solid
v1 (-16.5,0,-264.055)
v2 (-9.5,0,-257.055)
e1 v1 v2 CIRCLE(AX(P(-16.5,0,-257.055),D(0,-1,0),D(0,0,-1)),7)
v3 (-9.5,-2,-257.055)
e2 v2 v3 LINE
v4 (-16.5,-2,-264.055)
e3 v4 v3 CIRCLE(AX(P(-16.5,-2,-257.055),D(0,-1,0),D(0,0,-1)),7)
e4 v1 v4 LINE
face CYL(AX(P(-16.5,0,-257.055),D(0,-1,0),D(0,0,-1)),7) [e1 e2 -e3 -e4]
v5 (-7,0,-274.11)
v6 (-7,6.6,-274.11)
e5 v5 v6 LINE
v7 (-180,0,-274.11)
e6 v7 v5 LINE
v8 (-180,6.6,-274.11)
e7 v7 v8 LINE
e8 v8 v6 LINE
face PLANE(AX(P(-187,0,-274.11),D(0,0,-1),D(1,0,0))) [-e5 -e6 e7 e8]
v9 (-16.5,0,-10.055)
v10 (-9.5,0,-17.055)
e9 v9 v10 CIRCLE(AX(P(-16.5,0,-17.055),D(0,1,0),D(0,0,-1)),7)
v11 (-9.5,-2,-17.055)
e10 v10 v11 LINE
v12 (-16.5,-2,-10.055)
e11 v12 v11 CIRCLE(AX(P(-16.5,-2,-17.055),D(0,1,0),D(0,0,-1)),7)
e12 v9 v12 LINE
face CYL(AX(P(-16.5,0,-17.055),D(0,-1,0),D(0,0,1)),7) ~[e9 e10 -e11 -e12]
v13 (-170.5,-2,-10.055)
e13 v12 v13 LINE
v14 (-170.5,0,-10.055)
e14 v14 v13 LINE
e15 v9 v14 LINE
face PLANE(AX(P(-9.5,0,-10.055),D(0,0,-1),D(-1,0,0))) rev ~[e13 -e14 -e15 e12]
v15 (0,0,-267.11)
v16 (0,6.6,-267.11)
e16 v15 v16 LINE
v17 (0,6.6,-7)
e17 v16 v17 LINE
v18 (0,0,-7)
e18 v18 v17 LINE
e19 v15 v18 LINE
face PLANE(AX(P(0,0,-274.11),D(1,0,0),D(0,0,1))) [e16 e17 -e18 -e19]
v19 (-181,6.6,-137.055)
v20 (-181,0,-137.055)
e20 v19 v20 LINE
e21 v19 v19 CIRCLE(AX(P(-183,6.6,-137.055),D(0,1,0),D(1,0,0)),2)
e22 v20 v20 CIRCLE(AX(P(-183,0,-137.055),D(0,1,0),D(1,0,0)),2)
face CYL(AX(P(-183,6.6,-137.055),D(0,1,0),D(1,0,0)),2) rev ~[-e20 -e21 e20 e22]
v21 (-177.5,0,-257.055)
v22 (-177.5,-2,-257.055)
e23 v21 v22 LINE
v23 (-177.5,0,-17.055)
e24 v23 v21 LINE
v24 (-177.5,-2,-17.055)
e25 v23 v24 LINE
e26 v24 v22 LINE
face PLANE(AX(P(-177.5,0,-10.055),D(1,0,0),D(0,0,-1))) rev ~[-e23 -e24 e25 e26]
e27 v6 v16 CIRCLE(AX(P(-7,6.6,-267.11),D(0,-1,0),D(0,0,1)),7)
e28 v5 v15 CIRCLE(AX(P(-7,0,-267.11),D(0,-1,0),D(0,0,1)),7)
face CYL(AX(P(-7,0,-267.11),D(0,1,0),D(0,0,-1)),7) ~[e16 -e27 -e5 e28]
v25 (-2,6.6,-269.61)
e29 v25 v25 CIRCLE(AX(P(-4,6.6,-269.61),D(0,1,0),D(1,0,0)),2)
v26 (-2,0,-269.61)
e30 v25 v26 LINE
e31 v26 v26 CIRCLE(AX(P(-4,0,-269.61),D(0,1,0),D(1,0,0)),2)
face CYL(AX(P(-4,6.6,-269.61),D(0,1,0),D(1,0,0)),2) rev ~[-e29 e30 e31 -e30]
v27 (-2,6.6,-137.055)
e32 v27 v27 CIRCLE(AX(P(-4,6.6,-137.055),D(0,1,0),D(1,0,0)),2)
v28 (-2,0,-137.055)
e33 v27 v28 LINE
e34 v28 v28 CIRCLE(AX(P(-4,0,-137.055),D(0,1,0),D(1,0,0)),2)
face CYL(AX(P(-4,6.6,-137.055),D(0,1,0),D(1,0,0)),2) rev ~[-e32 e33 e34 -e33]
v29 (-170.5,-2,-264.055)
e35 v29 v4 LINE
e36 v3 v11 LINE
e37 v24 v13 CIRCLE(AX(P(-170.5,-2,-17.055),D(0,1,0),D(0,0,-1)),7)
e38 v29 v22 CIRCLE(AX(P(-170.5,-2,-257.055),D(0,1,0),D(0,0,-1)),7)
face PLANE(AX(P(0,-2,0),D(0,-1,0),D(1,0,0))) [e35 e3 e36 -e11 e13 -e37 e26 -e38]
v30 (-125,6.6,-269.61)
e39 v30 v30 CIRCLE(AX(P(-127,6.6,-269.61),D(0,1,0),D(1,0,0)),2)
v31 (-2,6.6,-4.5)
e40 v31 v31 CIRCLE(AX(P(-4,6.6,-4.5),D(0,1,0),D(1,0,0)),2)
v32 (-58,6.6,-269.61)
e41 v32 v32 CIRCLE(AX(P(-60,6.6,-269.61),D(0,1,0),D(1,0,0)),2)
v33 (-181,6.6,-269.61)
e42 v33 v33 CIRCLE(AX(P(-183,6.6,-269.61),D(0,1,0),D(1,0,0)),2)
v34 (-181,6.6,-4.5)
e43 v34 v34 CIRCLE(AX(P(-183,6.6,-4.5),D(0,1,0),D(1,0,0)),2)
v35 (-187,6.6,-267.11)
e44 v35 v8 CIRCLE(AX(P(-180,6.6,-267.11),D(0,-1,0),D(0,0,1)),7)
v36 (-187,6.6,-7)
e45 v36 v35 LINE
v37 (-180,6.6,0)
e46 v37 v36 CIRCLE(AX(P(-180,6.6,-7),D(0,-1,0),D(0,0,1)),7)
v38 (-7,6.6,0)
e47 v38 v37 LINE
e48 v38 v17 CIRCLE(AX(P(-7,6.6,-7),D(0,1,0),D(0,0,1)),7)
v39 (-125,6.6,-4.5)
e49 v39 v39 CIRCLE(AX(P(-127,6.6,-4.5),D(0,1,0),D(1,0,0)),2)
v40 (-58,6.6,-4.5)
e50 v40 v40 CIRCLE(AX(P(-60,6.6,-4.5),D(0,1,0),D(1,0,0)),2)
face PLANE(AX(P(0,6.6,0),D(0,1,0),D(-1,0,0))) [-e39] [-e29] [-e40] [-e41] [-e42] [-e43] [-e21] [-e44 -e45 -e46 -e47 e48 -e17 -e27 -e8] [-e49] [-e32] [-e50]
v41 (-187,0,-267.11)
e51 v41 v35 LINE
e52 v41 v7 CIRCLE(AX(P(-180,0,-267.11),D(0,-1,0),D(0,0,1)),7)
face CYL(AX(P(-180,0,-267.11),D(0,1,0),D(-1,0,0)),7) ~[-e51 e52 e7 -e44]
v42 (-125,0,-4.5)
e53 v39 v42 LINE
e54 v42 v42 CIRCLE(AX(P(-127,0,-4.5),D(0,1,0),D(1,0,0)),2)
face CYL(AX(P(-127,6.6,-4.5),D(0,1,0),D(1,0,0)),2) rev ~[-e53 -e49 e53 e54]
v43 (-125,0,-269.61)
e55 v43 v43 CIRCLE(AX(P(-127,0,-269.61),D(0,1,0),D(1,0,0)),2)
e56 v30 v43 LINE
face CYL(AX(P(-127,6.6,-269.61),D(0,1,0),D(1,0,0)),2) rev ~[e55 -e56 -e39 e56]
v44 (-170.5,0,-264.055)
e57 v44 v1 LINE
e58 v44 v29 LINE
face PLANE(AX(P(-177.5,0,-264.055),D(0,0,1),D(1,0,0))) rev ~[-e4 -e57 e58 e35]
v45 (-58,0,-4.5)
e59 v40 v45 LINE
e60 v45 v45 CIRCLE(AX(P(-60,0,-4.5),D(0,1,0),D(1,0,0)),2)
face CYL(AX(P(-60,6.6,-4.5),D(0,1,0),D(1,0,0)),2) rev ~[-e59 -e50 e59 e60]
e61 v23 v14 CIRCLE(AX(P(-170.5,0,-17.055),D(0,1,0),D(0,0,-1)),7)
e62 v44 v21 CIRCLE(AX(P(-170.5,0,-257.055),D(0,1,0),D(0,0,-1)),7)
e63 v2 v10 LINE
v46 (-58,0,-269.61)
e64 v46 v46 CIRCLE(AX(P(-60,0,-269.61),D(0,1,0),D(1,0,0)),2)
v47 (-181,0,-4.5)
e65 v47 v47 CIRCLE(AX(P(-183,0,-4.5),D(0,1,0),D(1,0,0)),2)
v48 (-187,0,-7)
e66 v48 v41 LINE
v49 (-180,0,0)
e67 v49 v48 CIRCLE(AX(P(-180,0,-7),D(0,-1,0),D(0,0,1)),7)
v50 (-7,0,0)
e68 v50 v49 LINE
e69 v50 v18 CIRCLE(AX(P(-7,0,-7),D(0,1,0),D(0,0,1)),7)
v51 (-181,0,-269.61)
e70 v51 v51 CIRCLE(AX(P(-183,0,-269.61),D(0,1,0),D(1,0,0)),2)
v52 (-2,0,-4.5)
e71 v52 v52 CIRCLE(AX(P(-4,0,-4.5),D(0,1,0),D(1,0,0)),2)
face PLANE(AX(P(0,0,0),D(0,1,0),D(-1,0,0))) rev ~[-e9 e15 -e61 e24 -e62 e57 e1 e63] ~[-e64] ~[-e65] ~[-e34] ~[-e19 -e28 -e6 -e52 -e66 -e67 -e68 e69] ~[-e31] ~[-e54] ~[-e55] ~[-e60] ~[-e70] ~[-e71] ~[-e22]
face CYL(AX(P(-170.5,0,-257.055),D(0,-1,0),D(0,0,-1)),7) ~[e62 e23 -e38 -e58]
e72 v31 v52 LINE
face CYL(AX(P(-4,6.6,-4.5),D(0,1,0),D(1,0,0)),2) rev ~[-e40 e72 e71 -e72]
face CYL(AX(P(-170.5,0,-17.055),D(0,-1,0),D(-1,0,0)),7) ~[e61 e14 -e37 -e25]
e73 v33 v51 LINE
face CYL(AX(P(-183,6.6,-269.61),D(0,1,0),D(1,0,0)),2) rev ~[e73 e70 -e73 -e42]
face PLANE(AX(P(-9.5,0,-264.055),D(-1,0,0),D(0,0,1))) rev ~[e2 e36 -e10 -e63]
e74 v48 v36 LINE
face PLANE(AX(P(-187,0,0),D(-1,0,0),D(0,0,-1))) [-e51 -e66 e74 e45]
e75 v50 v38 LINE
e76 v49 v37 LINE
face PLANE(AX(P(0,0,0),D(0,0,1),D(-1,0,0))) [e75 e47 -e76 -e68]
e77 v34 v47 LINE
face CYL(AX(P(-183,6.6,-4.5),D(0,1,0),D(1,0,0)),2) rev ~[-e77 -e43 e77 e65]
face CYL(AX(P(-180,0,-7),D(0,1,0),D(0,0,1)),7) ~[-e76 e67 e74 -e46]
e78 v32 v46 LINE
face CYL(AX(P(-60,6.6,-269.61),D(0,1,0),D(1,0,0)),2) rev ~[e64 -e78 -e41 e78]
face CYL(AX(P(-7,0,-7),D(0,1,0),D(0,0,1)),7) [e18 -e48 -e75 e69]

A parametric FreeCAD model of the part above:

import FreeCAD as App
import Part
import Sketcher

V = App.Vector
Q = App.Units.Quantity


def edges_at(feature, points):
    """Names of the edges that pass closest to the given points."""
    edges = feature.Shape.Edges
    near = lambda p: min(range(len(edges)), key=lambda i: edges[i].distToShape(Part.Vertex(*p))[0])
    return sorted({f"Edge{near(p) + 1}" for p in points})


def add_polygon(sketch, points):
    """Adds a closed chain of lines whose ends are joined by coincident constraints."""
    first, n = sketch.GeometryCount, len(points)
    for a, b in zip(points, points[1:] + points[:1]):
        sketch.addGeometry(Part.LineSegment(App.Vector(*a, 0), App.Vector(*b, 0)), False)
    for i in range(n):
        sketch.addConstraint(Sketcher.Constraint("Coincident", first + i, 2, first + (i + 1) % n, 1))

doc = App.newDocument("Part")
body = doc.addObject("PartDesign::Body", "Body")

# Sketch on XZ plane
sketch1 = body.newObject("Sketcher::SketchObject", "Sketch")
sketch1.AttachmentSupport = (doc.getObject("XZ_Plane"), [""])
sketch1.MapMode = "FlatFace"
add_polygon(sketch1, [(-187, 0), (0, 0), (0, -274.11), (-187, -274.11)])  # lines 0-3
sketch1.addConstraint([
    Sketcher.Constraint("Horizontal", 0),
    Sketcher.Constraint("Vertical", 1),
    Sketcher.Constraint("Horizontal", 2),
    Sketcher.Constraint("Vertical", 3),
    Sketcher.Constraint("Coincident", 0, 2, -1, 1),
    Sketcher.Constraint("DistanceX", 0, 1, 0, 2, Q("187 mm")),
    Sketcher.Constraint("DistanceY", 1, 2, 1, 1, Q("274.11 mm")),
])
pad1 = body.newObject("PartDesign::Pad", "Pad")
pad1.Profile = sketch1
pad1.Length = 6.6
pad1.Reversed = True
doc.recompute()

fillet = body.newObject("PartDesign::Fillet", "Fillet")
fillet.Base = (pad1, edges_at(pad1, [
    (0, 3.3, 0),
    (-187, 3.3, 0),
    (-187, 3.3, -274.11),
    (0, 3.3, -274.11),
]))
fillet.Radius = 7

# Sketch on XZ plane
sketch2 = body.newObject("Sketcher::SketchObject", "Sketch001")
sketch2.AttachmentSupport = (doc.getObject("XZ_Plane"), [""])
sketch2.MapMode = "FlatFace"
add_polygon(sketch2, [(-9.5, -264.055), (-9.5, -10.055), (-177.5, -10.055), (-177.5, -264.055)])  # lines 0-3
sketch2.addConstraint([
    Sketcher.Constraint("Vertical", 0),
    Sketcher.Constraint("Horizontal", 1),
    Sketcher.Constraint("Vertical", 2),
    Sketcher.Constraint("Horizontal", 3),
    Sketcher.Constraint("DistanceX", 1, 2, 1, 1, Q("168 mm")),
    Sketcher.Constraint("DistanceY", 0, 1, 0, 2, Q("254 mm")),
    Sketcher.Constraint("DistanceX", 0, 2, -1, 1, Q("9.5 mm")),
    Sketcher.Constraint("DistanceY", 0, 2, -1, 1, Q("10.055 mm")),
])
pad2 = body.newObject("PartDesign::Pad", "Pad001")
pad2.Profile = sketch2
pad2.Length = 2
doc.recompute()

fillet2 = body.newObject("PartDesign::Fillet", "Fillet001")
fillet2.Base = (pad2, edges_at(pad2, [
    (-9.5, -1, -264.055),
    (-177.5, -1, -264.055),
    (-177.5, -1, -10.055),
    (-9.5, -1, -10.055),
]))
fillet2.Radius = 7

# Sketch on XZ plane
sketch3 = body.newObject("Sketcher::SketchObject", "Sketch002")
sketch3.AttachmentSupport = (doc.getObject("XZ_Plane"), [""])
sketch3.MapMode = "FlatFace"
sketch3.AttachmentOffset = App.Placement(V(0, 0, -6.6), App.Rotation())
sketch3.addGeometry([
    Part.Circle(V(-4, -137.055, 0), V(0, 0, 1), 2),  # 0
    Part.Circle(V(-4, -4.5, 0), V(0, 0, 1), 2),  # 1
    Part.Circle(V(-60, -4.5, 0), V(0, 0, 1), 2),  # 2
    Part.Circle(V(-4, -269.61, 0), V(0, 0, 1), 2),  # 3
    Part.Circle(V(-60, -269.61, 0), V(0, 0, 1), 2),  # 4
    Part.Circle(V(-183, -137.055, 0), V(0, 0, 1), 2),  # 5
    Part.Circle(V(-183, -4.5, 0), V(0, 0, 1), 2),  # 6
    Part.Circle(V(-127, -4.5, 0), V(0, 0, 1), 2),  # 7
    Part.Circle(V(-183, -269.61, 0), V(0, 0, 1), 2),  # 8
    Part.Circle(V(-127, -269.61, 0), V(0, 0, 1), 2),  # 9
], False)
sketch3.addConstraint([
    Sketcher.Constraint("Equal", 0, 1),
    Sketcher.Constraint("Equal", 1, 2),
    Sketcher.Constraint("Equal", 2, 3),
    Sketcher.Constraint("Equal", 3, 4),
    Sketcher.Constraint("Equal", 4, 5),
    Sketcher.Constraint("Equal", 5, 6),
    Sketcher.Constraint("Equal", 6, 7),
    Sketcher.Constraint("Equal", 7, 8),
    Sketcher.Constraint("Equal", 8, 9),
    Sketcher.Constraint("Horizontal", 1, 3, 2, 3),
    Sketcher.Constraint("Horizontal", 3, 3, 4, 3),
    Sketcher.Constraint("Horizontal", 0, 3, 5, 3),
    Sketcher.Constraint("Horizontal", 2, 3, 6, 3),
    Sketcher.Constraint("Horizontal", 6, 3, 7, 3),
    Sketcher.Constraint("Horizontal", 4, 3, 8, 3),
    Sketcher.Constraint("Horizontal", 8, 3, 9, 3),
    Sketcher.Constraint("Vertical", 0, 3, 1, 3),
    Sketcher.Constraint("Vertical", 1, 3, 3, 3),
    Sketcher.Constraint("Vertical", 2, 3, 4, 3),
    Sketcher.Constraint("Vertical", 5, 3, 6, 3),
    Sketcher.Constraint("Vertical", 6, 3, 8, 3),
    Sketcher.Constraint("Vertical", 7, 3, 9, 3),
    Sketcher.Constraint("Diameter", 0, Q("4 mm")),
    Sketcher.Constraint("DistanceX", 0, 3, -1, 1, Q("4 mm")),
    Sketcher.Constraint("DistanceX", 5, 3, 0, 3, Q("179 mm")),
    Sketcher.Constraint("DistanceX", 7, 3, 2, 3, Q("67 mm")),
    Sketcher.Constraint("DistanceY", 3, 3, 1, 3, Q("265.11 mm")),
    Sketcher.Constraint("DistanceX", 2, 3, -1, 1, Q("60 mm")),
    Sketcher.Constraint("DistanceY", 1, 3, -1, 1, Q("4.5 mm")),
    Sketcher.Constraint("DistanceY", 0, 3, -1, 1, Q("137.055 mm")),
])
pocket1 = body.newObject("PartDesign::Pocket", "Pocket")
pocket1.Profile = sketch3
pocket1.Length = 6.6
pocket1.Reversed = True

doc.recompute()
